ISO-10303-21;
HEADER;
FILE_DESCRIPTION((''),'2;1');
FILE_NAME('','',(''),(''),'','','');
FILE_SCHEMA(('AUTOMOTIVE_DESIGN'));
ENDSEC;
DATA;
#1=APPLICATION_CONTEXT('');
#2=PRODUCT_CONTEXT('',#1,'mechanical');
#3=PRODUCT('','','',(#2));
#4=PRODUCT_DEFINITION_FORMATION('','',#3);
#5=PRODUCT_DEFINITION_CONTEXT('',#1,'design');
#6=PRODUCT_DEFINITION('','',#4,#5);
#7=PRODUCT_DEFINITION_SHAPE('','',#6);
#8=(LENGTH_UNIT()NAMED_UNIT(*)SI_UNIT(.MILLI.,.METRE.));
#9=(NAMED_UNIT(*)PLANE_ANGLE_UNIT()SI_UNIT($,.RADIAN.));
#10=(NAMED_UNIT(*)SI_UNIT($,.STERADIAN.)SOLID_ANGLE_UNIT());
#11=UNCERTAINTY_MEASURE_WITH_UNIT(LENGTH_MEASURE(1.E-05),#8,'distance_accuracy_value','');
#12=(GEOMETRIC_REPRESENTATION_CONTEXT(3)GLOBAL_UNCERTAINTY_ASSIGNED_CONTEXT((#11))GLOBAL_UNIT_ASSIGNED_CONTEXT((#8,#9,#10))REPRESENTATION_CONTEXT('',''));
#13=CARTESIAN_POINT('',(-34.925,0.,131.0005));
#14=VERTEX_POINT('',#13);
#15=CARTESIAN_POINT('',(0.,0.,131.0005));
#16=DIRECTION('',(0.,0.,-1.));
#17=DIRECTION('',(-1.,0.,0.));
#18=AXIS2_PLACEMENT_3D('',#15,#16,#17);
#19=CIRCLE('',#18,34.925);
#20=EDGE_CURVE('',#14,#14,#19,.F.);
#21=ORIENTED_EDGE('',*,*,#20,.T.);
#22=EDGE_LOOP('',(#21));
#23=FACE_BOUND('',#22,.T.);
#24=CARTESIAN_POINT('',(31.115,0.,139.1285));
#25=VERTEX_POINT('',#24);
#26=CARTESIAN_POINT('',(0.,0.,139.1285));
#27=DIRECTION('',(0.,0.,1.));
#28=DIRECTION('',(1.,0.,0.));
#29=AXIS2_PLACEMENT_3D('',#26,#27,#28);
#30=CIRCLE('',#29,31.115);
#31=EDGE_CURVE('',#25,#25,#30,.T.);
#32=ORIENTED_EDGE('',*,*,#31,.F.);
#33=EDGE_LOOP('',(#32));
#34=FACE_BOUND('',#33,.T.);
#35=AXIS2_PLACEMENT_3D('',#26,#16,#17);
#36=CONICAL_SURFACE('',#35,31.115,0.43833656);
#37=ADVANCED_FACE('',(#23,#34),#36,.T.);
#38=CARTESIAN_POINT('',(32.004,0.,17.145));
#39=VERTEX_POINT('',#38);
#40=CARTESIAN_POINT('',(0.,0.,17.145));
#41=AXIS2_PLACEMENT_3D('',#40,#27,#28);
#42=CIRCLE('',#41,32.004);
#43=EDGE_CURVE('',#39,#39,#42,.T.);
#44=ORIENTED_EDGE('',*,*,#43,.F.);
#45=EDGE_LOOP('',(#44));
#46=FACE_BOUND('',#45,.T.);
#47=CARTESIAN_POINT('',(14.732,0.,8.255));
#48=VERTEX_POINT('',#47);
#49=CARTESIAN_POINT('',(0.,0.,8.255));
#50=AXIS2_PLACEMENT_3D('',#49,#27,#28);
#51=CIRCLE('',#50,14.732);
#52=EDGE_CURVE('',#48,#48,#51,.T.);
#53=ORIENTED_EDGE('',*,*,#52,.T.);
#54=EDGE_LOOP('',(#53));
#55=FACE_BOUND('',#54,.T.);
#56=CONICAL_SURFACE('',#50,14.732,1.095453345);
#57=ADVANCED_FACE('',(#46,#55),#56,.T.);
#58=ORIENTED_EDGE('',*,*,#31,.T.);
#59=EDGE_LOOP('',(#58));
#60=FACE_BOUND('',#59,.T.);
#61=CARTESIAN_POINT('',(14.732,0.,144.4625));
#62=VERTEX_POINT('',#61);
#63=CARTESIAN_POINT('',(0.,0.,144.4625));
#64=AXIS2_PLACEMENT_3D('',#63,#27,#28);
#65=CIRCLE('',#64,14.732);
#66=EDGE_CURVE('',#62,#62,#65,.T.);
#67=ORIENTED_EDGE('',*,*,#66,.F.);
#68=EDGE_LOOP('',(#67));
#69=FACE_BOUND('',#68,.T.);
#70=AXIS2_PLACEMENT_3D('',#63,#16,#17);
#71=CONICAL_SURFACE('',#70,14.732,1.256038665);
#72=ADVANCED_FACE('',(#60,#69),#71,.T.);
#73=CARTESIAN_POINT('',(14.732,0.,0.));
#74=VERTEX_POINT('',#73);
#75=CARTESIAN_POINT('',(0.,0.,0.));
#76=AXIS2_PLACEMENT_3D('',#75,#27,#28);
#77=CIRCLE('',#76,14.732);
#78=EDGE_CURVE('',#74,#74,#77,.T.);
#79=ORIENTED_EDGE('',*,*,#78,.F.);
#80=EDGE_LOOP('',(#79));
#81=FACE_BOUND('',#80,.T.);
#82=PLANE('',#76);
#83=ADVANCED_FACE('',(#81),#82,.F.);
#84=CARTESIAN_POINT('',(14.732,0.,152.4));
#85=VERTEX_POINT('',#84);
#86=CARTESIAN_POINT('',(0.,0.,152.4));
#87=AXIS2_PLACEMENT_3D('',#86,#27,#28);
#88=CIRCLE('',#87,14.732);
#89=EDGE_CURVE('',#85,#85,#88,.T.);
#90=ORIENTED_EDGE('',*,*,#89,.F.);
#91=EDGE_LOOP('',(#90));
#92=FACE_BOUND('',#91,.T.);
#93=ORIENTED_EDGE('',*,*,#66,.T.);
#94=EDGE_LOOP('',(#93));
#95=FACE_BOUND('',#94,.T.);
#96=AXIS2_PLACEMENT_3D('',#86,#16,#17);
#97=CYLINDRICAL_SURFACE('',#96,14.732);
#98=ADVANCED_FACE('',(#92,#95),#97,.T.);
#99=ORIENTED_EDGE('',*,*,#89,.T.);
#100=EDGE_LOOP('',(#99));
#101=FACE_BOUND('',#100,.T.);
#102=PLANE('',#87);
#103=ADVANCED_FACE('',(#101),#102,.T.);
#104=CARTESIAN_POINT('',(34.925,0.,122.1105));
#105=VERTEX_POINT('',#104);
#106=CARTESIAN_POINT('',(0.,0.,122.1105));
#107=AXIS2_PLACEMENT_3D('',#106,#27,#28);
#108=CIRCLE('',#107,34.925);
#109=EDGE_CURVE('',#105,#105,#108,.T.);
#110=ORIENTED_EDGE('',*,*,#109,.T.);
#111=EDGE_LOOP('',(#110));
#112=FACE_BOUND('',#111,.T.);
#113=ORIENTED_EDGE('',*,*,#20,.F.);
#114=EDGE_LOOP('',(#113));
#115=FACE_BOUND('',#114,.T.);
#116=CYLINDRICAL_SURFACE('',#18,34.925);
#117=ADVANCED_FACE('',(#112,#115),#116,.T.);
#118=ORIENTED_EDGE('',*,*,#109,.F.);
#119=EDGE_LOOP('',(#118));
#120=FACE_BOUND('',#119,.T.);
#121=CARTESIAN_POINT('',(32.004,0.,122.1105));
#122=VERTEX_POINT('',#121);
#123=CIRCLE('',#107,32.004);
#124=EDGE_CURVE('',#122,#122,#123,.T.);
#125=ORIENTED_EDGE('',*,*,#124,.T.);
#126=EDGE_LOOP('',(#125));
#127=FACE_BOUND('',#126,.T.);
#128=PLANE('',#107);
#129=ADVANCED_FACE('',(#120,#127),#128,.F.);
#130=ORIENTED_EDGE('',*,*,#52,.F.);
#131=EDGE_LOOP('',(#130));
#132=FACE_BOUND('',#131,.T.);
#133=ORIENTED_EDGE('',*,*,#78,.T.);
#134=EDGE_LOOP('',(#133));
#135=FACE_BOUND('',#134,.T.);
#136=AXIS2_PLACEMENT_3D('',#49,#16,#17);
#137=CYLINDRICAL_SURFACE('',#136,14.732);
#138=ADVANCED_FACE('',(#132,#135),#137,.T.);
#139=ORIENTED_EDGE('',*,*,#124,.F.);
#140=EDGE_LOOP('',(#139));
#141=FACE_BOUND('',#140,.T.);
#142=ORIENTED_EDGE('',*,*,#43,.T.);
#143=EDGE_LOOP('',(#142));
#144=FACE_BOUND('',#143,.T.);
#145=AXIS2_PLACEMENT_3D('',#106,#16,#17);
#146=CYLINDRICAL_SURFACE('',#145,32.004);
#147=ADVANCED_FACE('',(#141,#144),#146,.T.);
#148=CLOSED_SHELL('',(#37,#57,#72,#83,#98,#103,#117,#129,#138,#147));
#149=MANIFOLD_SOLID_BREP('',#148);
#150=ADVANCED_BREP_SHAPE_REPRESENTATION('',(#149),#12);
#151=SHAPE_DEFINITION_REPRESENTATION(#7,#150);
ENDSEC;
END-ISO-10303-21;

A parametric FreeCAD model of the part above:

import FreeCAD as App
import Part
import Sketcher

V = App.Vector
Q = App.Units.Quantity

doc = App.newDocument("Part")
params = doc.addObject("Spreadsheet::Sheet", "Params")
for row, (alias, value) in enumerate([
    ("sketch1_diameter", "1.16 in"),
    ("pad1_length", "0.325 in"),
    ("sketch2_diameter", "1.16 in"),
    ("sketch3_diameter", "2.52 in"),
    ("sketch4_diameter", "2.52 in"),
    ("pad2_length", "4.1325 in"),
    ("sketch5_diameter", "2.75 in"),
    ("pad3_length", "0.35 in"),
    ("sketch6_diameter", "2.75 in"),
    ("sketch7_diameter", "2.45 in"),
    ("sketch8_diameter", "2.45 in"),
    ("sketch9_diameter", "1.16 in"),
    ("sketch10_diameter", "1.16 in"),
    ("pad4_length", "0.3125 in"),
], start=1):
    params.set(f"A{row}", alias)
    params.set(f"B{row}", "=" + value)
    params.setAlias(f"B{row}", alias)

body = doc.addObject("PartDesign::Body", "Body")

sketch1 = body.newObject("Sketcher::SketchObject", "Sketch")
sketch1.AttachmentSupport = (doc.getObject("XY_Plane"), [""])
sketch1.MapMode = "FlatFace"
sketch1.addGeometry(Part.Circle(V(0, 0, 0), V(0, 0, 1), 14.732), False)
sketch1.addConstraint([
    Sketcher.Constraint("Coincident", 0, 3, -1, 1),
    Sketcher.Constraint("Diameter", 0, Q("1.16 in")),
])
sketch1.setExpression("Constraints[1]", "Params.sketch1_diameter")
pad1 = body.newObject("PartDesign::Pad", "Pad")
pad1.Profile = sketch1
pad1.setExpression("Length", "Params.pad1_length")

sketch2 = body.newObject("Sketcher::SketchObject", "Sketch001")
sketch2.AttachmentSupport = (doc.getObject("XY_Plane"), [""])
sketch2.MapMode = "FlatFace"
sketch2.AttachmentOffset = App.Placement(V(0, 0, 0.325 * 25.4), App.Rotation())
sketch2.addGeometry(Part.Circle(V(0, 0, 0), V(0, 0, 1), 14.732), False)
sketch2.addConstraint([
    Sketcher.Constraint("Coincident", 0, 3, -1, 1),
    Sketcher.Constraint("Diameter", 0, Q("1.16 in")),
])
sketch2.setExpression("Constraints[1]", "Params.sketch2_diameter")

sketch3 = body.newObject("Sketcher::SketchObject", "Sketch002")
sketch3.AttachmentSupport = (doc.getObject("XY_Plane"), [""])
sketch3.MapMode = "FlatFace"
sketch3.AttachmentOffset = App.Placement(V(0, 0, 0.675 * 25.4), App.Rotation())
sketch3.addGeometry(Part.Circle(V(0, 0, 0), V(0, 0, 1), 32.004), False)
sketch3.addConstraint([
    Sketcher.Constraint("Coincident", 0, 3, -1, 1),
    Sketcher.Constraint("Diameter", 0, Q("2.52 in")),
])
sketch3.setExpression("Constraints[1]", "Params.sketch3_diameter")

additiveloft = body.newObject("PartDesign::AdditiveLoft", "AdditiveLoft")
additiveloft.Profile = sketch2
additiveloft.Sections = [sketch3]

sketch4 = body.newObject("Sketcher::SketchObject", "Sketch003")
sketch4.AttachmentSupport = (doc.getObject("XY_Plane"), [""])
sketch4.MapMode = "FlatFace"
sketch4.AttachmentOffset = App.Placement(V(0, 0, 0.675 * 25.4), App.Rotation())
sketch4.addGeometry(Part.Circle(V(0, 0, 0), V(0, 0, 1), 32.004), False)
sketch4.addConstraint([
    Sketcher.Constraint("Coincident", 0, 3, -1, 1),
    Sketcher.Constraint("Diameter", 0, Q("2.52 in")),
])
sketch4.setExpression("Constraints[1]", "Params.sketch4_diameter")
pad2 = body.newObject("PartDesign::Pad", "Pad001")
pad2.Profile = sketch4
pad2.setExpression("Length", "Params.pad2_length")

sketch5 = body.newObject("Sketcher::SketchObject", "Sketch004")
sketch5.AttachmentSupport = (doc.getObject("XY_Plane"), [""])
sketch5.MapMode = "FlatFace"
sketch5.AttachmentOffset = App.Placement(V(0, 0, 4.8075 * 25.4), App.Rotation())
sketch5.addGeometry(Part.Circle(V(0, 0, 0), V(0, 0, 1), 34.925), False)
sketch5.addConstraint([
    Sketcher.Constraint("Coincident", 0, 3, -1, 1),
    Sketcher.Constraint("Diameter", 0, Q("2.75 in")),
])
sketch5.setExpression("Constraints[1]", "Params.sketch5_diameter")
pad3 = body.newObject("PartDesign::Pad", "Pad002")
pad3.Profile = sketch5
pad3.setExpression("Length", "Params.pad3_length")

sketch6 = body.newObject("Sketcher::SketchObject", "Sketch005")
sketch6.AttachmentSupport = (doc.getObject("XY_Plane"), [""])
sketch6.MapMode = "FlatFace"
sketch6.AttachmentOffset = App.Placement(V(0, 0, 5.1575 * 25.4), App.Rotation())
sketch6.addGeometry(Part.Circle(V(0, 0, 0), V(0, 0, 1), 34.925), False)
sketch6.addConstraint([
    Sketcher.Constraint("Coincident", 0, 3, -1, 1),
    Sketcher.Constraint("Diameter", 0, Q("2.75 in")),
])
sketch6.setExpression("Constraints[1]", "Params.sketch6_diameter")

sketch7 = body.newObject("Sketcher::SketchObject", "Sketch006")
sketch7.AttachmentSupport = (doc.getObject("XY_Plane"), [""])
sketch7.MapMode = "FlatFace"
sketch7.AttachmentOffset = App.Placement(V(0, 0, 5.4775 * 25.4), App.Rotation())
sketch7.addGeometry(Part.Circle(V(0, 0, 0), V(0, 0, 1), 31.115), False)
sketch7.addConstraint([
    Sketcher.Constraint("Coincident", 0, 3, -1, 1),
    Sketcher.Constraint("Diameter", 0, Q("2.45 in")),
])
sketch7.setExpression("Constraints[1]", "Params.sketch7_diameter")

additiveloft2 = body.newObject("PartDesign::AdditiveLoft", "AdditiveLoft001")
additiveloft2.Profile = sketch6
additiveloft2.Sections = [sketch7]

sketch8 = body.newObject("Sketcher::SketchObject", "Sketch007")
sketch8.AttachmentSupport = (doc.getObject("XY_Plane"), [""])
sketch8.MapMode = "FlatFace"
sketch8.AttachmentOffset = App.Placement(V(0, 0, 5.4775 * 25.4), App.Rotation())
sketch8.addGeometry(Part.Circle(V(0, 0, 0), V(0, 0, 1), 31.115), False)
sketch8.addConstraint([
    Sketcher.Constraint("Coincident", 0, 3, -1, 1),
    Sketcher.Constraint("Diameter", 0, Q("2.45 in")),
])
sketch8.setExpression("Constraints[1]", "Params.sketch8_diameter")

sketch9 = body.newObject("Sketcher::SketchObject", "Sketch008")
sketch9.AttachmentSupport = (doc.getObject("XY_Plane"), [""])
sketch9.MapMode = "FlatFace"
sketch9.AttachmentOffset = App.Placement(V(0, 0, 5.6875 * 25.4), App.Rotation())
sketch9.addGeometry(Part.Circle(V(0, 0, 0), V(0, 0, 1), 14.732), False)
sketch9.addConstraint([
    Sketcher.Constraint("Coincident", 0, 3, -1, 1),
    Sketcher.Constraint("Diameter", 0, Q("1.16 in")),
])
sketch9.setExpression("Constraints[1]", "Params.sketch9_diameter")

additiveloft3 = body.newObject("PartDesign::AdditiveLoft", "AdditiveLoft002")
additiveloft3.Profile = sketch8
additiveloft3.Sections = [sketch9]

sketch10 = body.newObject("Sketcher::SketchObject", "Sketch009")
sketch10.AttachmentSupport = (doc.getObject("XY_Plane"), [""])
sketch10.MapMode = "FlatFace"
sketch10.AttachmentOffset = App.Placement(V(0, 0, 5.6875 * 25.4), App.Rotation())
sketch10.addGeometry(Part.Circle(V(0, 0, 0), V(0, 0, 1), 14.732), False)
sketch10.addConstraint([
    Sketcher.Constraint("Coincident", 0, 3, -1, 1),
    Sketcher.Constraint("Diameter", 0, Q("1.16 in")),
])
sketch10.setExpression("Constraints[1]", "Params.sketch10_diameter")
pad4 = body.newObject("PartDesign::Pad", "Pad003")
pad4.Profile = sketch10
pad4.setExpression("Length", "Params.pad4_length")

doc.recompute()
